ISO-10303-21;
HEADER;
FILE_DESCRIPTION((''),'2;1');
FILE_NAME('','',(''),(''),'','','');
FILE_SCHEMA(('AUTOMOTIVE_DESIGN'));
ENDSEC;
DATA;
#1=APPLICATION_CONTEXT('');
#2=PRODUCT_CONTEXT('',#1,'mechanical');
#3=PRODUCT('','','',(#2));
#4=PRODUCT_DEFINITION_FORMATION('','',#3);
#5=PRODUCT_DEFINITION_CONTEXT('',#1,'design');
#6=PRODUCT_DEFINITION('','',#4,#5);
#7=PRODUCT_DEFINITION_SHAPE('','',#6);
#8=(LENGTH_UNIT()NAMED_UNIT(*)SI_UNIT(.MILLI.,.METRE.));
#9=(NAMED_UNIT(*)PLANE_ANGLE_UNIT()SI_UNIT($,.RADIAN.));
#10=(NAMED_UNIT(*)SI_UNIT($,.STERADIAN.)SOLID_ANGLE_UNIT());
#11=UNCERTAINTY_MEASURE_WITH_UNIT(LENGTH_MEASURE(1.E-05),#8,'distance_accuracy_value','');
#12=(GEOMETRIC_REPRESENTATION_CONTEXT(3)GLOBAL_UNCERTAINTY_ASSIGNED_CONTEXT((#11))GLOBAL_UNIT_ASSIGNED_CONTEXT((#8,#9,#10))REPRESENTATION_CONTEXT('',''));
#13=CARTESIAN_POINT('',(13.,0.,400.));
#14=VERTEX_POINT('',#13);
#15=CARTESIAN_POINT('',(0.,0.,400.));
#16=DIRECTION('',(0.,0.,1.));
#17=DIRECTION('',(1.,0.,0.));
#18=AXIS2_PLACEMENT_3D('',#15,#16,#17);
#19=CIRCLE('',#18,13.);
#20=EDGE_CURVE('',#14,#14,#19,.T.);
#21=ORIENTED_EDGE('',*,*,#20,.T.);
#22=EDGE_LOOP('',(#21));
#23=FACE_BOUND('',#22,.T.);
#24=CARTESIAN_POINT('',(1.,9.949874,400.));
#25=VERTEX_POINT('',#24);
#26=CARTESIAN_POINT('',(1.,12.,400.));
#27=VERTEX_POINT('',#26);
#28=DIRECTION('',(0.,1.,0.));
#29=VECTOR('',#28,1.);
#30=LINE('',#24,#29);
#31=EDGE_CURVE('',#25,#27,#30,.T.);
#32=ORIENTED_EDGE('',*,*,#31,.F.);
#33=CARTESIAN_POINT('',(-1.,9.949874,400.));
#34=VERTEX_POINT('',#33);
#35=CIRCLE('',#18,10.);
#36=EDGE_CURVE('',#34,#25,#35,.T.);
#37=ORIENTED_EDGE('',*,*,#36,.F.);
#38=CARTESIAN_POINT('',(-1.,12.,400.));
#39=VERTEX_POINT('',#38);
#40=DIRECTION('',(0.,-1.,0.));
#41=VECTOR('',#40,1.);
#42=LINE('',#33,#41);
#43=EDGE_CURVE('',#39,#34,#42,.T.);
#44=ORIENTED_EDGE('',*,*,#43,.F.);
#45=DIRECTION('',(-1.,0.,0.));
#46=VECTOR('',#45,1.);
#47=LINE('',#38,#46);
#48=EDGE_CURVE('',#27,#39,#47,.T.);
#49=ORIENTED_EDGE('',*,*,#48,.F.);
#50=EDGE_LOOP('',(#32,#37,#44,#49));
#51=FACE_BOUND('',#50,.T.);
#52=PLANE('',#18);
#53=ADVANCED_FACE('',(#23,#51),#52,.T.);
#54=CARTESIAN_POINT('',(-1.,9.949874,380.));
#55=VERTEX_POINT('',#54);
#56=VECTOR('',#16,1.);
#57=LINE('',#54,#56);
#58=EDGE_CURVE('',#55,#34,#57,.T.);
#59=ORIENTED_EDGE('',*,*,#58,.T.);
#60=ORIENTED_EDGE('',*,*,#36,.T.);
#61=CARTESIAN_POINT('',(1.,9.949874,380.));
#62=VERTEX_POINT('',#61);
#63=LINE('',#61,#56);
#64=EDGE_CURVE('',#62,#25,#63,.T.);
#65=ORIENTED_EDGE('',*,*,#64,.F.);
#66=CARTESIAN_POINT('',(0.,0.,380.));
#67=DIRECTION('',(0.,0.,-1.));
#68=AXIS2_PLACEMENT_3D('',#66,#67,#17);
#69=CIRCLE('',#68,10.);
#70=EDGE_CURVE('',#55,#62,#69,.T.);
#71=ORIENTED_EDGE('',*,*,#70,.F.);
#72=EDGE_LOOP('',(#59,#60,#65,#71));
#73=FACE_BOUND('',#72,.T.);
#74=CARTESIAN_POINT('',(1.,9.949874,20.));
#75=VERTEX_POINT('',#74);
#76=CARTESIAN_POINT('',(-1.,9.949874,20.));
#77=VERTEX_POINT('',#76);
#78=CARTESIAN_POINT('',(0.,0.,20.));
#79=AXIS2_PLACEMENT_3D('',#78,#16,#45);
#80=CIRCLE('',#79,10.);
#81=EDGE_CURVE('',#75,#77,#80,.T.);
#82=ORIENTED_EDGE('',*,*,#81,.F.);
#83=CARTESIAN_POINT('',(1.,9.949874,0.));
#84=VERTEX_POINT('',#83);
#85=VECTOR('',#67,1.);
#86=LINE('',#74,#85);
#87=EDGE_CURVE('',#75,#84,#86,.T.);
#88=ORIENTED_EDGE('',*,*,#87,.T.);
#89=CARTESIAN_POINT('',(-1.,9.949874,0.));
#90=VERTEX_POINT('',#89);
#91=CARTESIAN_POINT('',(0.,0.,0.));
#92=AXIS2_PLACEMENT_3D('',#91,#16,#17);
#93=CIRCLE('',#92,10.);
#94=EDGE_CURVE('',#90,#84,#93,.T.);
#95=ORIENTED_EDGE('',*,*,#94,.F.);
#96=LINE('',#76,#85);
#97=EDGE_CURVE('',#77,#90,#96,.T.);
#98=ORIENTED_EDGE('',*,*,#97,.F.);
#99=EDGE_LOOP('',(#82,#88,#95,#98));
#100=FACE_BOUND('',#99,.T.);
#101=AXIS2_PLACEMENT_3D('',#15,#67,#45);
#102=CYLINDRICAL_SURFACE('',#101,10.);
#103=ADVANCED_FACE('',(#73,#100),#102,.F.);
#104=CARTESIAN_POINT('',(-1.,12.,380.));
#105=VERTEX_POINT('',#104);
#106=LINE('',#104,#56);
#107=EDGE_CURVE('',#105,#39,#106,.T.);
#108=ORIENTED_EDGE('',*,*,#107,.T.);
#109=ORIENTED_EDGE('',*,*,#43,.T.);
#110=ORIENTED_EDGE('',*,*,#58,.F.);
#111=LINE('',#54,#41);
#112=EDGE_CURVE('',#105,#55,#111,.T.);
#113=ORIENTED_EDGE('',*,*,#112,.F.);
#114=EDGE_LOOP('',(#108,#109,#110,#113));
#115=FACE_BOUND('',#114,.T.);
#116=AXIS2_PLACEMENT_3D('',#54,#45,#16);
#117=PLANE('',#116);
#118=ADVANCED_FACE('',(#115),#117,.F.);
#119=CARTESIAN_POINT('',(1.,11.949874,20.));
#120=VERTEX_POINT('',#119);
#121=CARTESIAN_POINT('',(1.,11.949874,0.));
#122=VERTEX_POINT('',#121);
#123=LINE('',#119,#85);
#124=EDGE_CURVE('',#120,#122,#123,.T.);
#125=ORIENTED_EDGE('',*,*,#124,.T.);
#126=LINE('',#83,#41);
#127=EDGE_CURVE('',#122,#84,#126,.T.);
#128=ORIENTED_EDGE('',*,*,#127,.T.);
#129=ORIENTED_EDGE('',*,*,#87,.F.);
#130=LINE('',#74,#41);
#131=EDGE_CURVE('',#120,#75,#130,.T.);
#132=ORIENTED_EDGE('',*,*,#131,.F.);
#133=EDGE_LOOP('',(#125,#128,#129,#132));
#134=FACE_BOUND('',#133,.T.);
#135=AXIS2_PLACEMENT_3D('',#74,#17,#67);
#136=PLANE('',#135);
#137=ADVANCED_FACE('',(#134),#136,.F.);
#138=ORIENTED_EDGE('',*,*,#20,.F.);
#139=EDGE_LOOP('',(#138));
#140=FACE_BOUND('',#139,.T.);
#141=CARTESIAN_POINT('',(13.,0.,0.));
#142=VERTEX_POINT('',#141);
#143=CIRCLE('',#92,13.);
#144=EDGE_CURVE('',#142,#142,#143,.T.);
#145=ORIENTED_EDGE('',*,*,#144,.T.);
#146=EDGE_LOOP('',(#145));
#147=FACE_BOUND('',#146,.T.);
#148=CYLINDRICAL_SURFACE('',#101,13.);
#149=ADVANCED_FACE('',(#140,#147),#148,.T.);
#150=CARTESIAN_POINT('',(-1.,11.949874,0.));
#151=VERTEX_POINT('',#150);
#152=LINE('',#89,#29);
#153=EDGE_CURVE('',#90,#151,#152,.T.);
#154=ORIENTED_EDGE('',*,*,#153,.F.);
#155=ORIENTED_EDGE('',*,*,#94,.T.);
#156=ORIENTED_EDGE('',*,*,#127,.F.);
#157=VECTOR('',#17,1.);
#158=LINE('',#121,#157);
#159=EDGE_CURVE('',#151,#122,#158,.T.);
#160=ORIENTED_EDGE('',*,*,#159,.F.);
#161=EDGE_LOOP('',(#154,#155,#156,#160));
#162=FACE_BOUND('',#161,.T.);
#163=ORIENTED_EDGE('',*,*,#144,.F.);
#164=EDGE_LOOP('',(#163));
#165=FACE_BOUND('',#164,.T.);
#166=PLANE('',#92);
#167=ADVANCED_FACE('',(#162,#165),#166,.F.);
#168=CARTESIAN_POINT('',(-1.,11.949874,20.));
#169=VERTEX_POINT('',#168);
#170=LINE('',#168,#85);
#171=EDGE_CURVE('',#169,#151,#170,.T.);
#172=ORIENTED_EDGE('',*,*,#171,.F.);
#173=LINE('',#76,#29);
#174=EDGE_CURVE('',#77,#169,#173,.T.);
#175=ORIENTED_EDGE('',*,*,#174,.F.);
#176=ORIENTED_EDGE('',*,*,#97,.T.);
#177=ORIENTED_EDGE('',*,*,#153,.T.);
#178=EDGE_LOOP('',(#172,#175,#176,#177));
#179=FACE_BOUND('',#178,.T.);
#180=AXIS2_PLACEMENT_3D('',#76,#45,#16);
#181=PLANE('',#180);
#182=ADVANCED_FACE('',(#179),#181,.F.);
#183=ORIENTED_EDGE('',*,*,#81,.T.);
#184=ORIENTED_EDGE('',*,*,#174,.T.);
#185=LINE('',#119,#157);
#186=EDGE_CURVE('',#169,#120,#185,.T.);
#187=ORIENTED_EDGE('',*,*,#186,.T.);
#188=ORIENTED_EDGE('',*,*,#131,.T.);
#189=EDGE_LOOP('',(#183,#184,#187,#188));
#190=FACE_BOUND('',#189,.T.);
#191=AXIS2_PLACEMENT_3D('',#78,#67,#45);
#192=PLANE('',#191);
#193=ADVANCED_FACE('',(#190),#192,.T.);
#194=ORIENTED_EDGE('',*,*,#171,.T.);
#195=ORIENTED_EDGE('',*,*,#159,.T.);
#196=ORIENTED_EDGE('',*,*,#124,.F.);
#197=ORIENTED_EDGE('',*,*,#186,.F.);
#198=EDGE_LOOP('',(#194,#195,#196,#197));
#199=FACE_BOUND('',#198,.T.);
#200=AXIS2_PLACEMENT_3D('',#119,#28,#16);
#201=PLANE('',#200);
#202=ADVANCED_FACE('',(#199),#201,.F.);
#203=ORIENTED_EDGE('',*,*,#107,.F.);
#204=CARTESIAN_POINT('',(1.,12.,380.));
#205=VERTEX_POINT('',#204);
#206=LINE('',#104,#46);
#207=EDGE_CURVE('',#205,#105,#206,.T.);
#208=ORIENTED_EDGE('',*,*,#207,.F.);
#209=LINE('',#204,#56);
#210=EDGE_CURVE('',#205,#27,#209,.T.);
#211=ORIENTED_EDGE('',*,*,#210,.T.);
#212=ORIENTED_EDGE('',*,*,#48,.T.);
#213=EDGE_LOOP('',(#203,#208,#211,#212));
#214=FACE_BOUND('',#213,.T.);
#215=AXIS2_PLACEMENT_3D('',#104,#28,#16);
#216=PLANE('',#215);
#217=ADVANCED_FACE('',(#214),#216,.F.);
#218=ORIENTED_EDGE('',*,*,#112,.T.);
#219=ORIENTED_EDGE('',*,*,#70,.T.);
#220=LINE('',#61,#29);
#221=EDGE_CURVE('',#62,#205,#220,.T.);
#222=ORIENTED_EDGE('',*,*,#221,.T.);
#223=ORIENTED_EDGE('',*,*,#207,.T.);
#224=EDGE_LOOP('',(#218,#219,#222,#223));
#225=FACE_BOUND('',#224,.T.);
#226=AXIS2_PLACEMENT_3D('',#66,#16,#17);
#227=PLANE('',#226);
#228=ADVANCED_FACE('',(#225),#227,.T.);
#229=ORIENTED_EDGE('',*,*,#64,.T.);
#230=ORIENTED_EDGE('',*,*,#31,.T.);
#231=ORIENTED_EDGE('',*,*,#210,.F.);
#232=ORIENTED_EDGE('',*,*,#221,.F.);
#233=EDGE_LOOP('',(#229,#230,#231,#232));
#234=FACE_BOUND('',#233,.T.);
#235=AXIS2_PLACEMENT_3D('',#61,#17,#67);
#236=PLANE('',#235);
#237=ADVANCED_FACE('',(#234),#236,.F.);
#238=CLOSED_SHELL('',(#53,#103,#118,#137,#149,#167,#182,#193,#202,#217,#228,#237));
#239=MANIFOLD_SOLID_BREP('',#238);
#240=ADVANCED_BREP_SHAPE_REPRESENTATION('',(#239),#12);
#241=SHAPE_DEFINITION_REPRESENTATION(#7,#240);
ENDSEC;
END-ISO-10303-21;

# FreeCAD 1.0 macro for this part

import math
import FreeCAD as App
import Part
import Sketcher
from FreeCAD import Vector
Q = App.Units.Quantity

doc = App.newDocument("Part")
body = doc.addObject("PartDesign::Body", "Body")

# Sketch on XY plane
sketch1 = doc.addObject("Sketcher::SketchObject", "Sketch")
body.addObject(sketch1)
sketch1.AttachmentSupport = (doc.XY_Plane, [""])
sketch1.MapMode = "FlatFace"
sketch1.addGeometry(Part.Circle(Vector(0, 0, 0), Vector(0, 0, 1), 13), False)
sketch1.addGeometry(Part.Circle(Vector(0, 0, 0), Vector(0, 0, 1), 10), False)
sketch1.addConstraint(Sketcher.Constraint("Coincident", 0, 3, -1, 1))
sketch1.addConstraint(Sketcher.Constraint("Coincident", 1, 3, -1, 1))
sketch1.addConstraint(Sketcher.Constraint("Diameter", 0, Q("26 mm")))
sketch1.addConstraint(Sketcher.Constraint("Diameter", 1, Q("20 mm")))
pad1 = doc.addObject("PartDesign::Pad", "Pad")
body.addObject(pad1)
pad1.Profile = sketch1
pad1.Length = 400

# Sketch on XY plane
sketch2 = doc.addObject("Sketcher::SketchObject", "Sketch001")
body.addObject(sketch2)
sketch2.AttachmentSupport = (doc.XY_Plane, [""])
sketch2.MapMode = "FlatFace"
sketch2.AttachmentOffset = App.Placement(Vector(0, 0, 380), App.Rotation())
sketch2.addGeometry(Part.LineSegment(Vector(-1, 12, 0), Vector(-1, 9.9, 0)), False)
sketch2.addGeometry(Part.ArcOfCircle(Part.Circle(Vector(0, 0, 0), Vector(0, 0, 1), 10), math.radians(84.26), math.radians(95.74)), False)
sketch2.addGeometry(Part.LineSegment(Vector(1, 9.9, 0), Vector(1, 12, 0)), False)
sketch2.addGeometry(Part.LineSegment(Vector(1, 12, 0), Vector(-1, 12, 0)), False)
sketch2.addConstraint(Sketcher.Constraint("Coincident", 0, 2, 1, 2))
sketch2.addConstraint(Sketcher.Constraint("Coincident", 1, 1, 2, 1))
sketch2.addConstraint(Sketcher.Constraint("Coincident", 2, 2, 3, 1))
sketch2.addConstraint(Sketcher.Constraint("Coincident", 3, 2, 0, 1))
sketch2.addConstraint(Sketcher.Constraint("Vertical", 0))
sketch2.addConstraint(Sketcher.Constraint("Vertical", 2))
sketch2.addConstraint(Sketcher.Constraint("Horizontal", 3))
sketch2.addConstraint(Sketcher.Constraint("Coincident", 1, 3, -1, 1))
sketch2.addConstraint(Sketcher.Constraint("Horizontal", 0, 2, 1, 1))
sketch2.addConstraint(Sketcher.Constraint("Radius", 1, Q("10 mm")))
sketch2.addConstraint(Sketcher.Constraint("DistanceX", 3, 2, 3, 1, Q("2 mm")))
sketch2.addConstraint(Sketcher.Constraint("DistanceY", -1, 1, 2, 2, Q("12 mm")))
pocket1 = doc.addObject("PartDesign::Pocket", "Pocket")
body.addObject(pocket1)
pocket1.Profile = sketch2
pocket1.Length = 20
pocket1.Reversed = True

# Sketch on XY plane
sketch3 = doc.addObject("Sketcher::SketchObject", "Sketch002")
body.addObject(sketch3)
sketch3.AttachmentSupport = (doc.XY_Plane, [""])
sketch3.MapMode = "FlatFace"
sketch3.addGeometry(Part.LineSegment(Vector(1, 11.9, 0), Vector(1, 9.9, 0)), False)
sketch3.addGeometry(Part.ArcOfCircle(Part.Circle(Vector(0, 0, 0), Vector(0, 0, 1), 10), math.radians(84.26), math.radians(95.74)), False)
sketch3.addGeometry(Part.LineSegment(Vector(-1, 9.9, 0), Vector(-1, 11.9, 0)), False)
sketch3.addGeometry(Part.LineSegment(Vector(-1, 11.9, 0), Vector(1, 11.9, 0)), False)
sketch3.addConstraint(Sketcher.Constraint("Coincident", 0, 2, 1, 1))
sketch3.addConstraint(Sketcher.Constraint("Coincident", 1, 2, 2, 1))
sketch3.addConstraint(Sketcher.Constraint("Coincident", 2, 2, 3, 1))
sketch3.addConstraint(Sketcher.Constraint("Coincident", 3, 2, 0, 1))
sketch3.addConstraint(Sketcher.Constraint("Vertical", 0))
sketch3.addConstraint(Sketcher.Constraint("Vertical", 2))
sketch3.addConstraint(Sketcher.Constraint("Horizontal", 3))
sketch3.addConstraint(Sketcher.Constraint("Coincident", 1, 3, -1, 1))
sketch3.addConstraint(Sketcher.Constraint("Horizontal", 0, 2, 1, 2))
sketch3.addConstraint(Sketcher.Constraint("Equal", 3, 0))
sketch3.addConstraint(Sketcher.Constraint("Radius", 1, Q("10 mm")))
sketch3.addConstraint(Sketcher.Constraint("DistanceX", 3, 1, 3, 2, Q("2 mm")))
pocket2 = doc.addObject("PartDesign::Pocket", "Pocket001")
body.addObject(pocket2)
pocket2.Profile = sketch3
pocket2.Length = 20
pocket2.Reversed = True

doc.recompute()
